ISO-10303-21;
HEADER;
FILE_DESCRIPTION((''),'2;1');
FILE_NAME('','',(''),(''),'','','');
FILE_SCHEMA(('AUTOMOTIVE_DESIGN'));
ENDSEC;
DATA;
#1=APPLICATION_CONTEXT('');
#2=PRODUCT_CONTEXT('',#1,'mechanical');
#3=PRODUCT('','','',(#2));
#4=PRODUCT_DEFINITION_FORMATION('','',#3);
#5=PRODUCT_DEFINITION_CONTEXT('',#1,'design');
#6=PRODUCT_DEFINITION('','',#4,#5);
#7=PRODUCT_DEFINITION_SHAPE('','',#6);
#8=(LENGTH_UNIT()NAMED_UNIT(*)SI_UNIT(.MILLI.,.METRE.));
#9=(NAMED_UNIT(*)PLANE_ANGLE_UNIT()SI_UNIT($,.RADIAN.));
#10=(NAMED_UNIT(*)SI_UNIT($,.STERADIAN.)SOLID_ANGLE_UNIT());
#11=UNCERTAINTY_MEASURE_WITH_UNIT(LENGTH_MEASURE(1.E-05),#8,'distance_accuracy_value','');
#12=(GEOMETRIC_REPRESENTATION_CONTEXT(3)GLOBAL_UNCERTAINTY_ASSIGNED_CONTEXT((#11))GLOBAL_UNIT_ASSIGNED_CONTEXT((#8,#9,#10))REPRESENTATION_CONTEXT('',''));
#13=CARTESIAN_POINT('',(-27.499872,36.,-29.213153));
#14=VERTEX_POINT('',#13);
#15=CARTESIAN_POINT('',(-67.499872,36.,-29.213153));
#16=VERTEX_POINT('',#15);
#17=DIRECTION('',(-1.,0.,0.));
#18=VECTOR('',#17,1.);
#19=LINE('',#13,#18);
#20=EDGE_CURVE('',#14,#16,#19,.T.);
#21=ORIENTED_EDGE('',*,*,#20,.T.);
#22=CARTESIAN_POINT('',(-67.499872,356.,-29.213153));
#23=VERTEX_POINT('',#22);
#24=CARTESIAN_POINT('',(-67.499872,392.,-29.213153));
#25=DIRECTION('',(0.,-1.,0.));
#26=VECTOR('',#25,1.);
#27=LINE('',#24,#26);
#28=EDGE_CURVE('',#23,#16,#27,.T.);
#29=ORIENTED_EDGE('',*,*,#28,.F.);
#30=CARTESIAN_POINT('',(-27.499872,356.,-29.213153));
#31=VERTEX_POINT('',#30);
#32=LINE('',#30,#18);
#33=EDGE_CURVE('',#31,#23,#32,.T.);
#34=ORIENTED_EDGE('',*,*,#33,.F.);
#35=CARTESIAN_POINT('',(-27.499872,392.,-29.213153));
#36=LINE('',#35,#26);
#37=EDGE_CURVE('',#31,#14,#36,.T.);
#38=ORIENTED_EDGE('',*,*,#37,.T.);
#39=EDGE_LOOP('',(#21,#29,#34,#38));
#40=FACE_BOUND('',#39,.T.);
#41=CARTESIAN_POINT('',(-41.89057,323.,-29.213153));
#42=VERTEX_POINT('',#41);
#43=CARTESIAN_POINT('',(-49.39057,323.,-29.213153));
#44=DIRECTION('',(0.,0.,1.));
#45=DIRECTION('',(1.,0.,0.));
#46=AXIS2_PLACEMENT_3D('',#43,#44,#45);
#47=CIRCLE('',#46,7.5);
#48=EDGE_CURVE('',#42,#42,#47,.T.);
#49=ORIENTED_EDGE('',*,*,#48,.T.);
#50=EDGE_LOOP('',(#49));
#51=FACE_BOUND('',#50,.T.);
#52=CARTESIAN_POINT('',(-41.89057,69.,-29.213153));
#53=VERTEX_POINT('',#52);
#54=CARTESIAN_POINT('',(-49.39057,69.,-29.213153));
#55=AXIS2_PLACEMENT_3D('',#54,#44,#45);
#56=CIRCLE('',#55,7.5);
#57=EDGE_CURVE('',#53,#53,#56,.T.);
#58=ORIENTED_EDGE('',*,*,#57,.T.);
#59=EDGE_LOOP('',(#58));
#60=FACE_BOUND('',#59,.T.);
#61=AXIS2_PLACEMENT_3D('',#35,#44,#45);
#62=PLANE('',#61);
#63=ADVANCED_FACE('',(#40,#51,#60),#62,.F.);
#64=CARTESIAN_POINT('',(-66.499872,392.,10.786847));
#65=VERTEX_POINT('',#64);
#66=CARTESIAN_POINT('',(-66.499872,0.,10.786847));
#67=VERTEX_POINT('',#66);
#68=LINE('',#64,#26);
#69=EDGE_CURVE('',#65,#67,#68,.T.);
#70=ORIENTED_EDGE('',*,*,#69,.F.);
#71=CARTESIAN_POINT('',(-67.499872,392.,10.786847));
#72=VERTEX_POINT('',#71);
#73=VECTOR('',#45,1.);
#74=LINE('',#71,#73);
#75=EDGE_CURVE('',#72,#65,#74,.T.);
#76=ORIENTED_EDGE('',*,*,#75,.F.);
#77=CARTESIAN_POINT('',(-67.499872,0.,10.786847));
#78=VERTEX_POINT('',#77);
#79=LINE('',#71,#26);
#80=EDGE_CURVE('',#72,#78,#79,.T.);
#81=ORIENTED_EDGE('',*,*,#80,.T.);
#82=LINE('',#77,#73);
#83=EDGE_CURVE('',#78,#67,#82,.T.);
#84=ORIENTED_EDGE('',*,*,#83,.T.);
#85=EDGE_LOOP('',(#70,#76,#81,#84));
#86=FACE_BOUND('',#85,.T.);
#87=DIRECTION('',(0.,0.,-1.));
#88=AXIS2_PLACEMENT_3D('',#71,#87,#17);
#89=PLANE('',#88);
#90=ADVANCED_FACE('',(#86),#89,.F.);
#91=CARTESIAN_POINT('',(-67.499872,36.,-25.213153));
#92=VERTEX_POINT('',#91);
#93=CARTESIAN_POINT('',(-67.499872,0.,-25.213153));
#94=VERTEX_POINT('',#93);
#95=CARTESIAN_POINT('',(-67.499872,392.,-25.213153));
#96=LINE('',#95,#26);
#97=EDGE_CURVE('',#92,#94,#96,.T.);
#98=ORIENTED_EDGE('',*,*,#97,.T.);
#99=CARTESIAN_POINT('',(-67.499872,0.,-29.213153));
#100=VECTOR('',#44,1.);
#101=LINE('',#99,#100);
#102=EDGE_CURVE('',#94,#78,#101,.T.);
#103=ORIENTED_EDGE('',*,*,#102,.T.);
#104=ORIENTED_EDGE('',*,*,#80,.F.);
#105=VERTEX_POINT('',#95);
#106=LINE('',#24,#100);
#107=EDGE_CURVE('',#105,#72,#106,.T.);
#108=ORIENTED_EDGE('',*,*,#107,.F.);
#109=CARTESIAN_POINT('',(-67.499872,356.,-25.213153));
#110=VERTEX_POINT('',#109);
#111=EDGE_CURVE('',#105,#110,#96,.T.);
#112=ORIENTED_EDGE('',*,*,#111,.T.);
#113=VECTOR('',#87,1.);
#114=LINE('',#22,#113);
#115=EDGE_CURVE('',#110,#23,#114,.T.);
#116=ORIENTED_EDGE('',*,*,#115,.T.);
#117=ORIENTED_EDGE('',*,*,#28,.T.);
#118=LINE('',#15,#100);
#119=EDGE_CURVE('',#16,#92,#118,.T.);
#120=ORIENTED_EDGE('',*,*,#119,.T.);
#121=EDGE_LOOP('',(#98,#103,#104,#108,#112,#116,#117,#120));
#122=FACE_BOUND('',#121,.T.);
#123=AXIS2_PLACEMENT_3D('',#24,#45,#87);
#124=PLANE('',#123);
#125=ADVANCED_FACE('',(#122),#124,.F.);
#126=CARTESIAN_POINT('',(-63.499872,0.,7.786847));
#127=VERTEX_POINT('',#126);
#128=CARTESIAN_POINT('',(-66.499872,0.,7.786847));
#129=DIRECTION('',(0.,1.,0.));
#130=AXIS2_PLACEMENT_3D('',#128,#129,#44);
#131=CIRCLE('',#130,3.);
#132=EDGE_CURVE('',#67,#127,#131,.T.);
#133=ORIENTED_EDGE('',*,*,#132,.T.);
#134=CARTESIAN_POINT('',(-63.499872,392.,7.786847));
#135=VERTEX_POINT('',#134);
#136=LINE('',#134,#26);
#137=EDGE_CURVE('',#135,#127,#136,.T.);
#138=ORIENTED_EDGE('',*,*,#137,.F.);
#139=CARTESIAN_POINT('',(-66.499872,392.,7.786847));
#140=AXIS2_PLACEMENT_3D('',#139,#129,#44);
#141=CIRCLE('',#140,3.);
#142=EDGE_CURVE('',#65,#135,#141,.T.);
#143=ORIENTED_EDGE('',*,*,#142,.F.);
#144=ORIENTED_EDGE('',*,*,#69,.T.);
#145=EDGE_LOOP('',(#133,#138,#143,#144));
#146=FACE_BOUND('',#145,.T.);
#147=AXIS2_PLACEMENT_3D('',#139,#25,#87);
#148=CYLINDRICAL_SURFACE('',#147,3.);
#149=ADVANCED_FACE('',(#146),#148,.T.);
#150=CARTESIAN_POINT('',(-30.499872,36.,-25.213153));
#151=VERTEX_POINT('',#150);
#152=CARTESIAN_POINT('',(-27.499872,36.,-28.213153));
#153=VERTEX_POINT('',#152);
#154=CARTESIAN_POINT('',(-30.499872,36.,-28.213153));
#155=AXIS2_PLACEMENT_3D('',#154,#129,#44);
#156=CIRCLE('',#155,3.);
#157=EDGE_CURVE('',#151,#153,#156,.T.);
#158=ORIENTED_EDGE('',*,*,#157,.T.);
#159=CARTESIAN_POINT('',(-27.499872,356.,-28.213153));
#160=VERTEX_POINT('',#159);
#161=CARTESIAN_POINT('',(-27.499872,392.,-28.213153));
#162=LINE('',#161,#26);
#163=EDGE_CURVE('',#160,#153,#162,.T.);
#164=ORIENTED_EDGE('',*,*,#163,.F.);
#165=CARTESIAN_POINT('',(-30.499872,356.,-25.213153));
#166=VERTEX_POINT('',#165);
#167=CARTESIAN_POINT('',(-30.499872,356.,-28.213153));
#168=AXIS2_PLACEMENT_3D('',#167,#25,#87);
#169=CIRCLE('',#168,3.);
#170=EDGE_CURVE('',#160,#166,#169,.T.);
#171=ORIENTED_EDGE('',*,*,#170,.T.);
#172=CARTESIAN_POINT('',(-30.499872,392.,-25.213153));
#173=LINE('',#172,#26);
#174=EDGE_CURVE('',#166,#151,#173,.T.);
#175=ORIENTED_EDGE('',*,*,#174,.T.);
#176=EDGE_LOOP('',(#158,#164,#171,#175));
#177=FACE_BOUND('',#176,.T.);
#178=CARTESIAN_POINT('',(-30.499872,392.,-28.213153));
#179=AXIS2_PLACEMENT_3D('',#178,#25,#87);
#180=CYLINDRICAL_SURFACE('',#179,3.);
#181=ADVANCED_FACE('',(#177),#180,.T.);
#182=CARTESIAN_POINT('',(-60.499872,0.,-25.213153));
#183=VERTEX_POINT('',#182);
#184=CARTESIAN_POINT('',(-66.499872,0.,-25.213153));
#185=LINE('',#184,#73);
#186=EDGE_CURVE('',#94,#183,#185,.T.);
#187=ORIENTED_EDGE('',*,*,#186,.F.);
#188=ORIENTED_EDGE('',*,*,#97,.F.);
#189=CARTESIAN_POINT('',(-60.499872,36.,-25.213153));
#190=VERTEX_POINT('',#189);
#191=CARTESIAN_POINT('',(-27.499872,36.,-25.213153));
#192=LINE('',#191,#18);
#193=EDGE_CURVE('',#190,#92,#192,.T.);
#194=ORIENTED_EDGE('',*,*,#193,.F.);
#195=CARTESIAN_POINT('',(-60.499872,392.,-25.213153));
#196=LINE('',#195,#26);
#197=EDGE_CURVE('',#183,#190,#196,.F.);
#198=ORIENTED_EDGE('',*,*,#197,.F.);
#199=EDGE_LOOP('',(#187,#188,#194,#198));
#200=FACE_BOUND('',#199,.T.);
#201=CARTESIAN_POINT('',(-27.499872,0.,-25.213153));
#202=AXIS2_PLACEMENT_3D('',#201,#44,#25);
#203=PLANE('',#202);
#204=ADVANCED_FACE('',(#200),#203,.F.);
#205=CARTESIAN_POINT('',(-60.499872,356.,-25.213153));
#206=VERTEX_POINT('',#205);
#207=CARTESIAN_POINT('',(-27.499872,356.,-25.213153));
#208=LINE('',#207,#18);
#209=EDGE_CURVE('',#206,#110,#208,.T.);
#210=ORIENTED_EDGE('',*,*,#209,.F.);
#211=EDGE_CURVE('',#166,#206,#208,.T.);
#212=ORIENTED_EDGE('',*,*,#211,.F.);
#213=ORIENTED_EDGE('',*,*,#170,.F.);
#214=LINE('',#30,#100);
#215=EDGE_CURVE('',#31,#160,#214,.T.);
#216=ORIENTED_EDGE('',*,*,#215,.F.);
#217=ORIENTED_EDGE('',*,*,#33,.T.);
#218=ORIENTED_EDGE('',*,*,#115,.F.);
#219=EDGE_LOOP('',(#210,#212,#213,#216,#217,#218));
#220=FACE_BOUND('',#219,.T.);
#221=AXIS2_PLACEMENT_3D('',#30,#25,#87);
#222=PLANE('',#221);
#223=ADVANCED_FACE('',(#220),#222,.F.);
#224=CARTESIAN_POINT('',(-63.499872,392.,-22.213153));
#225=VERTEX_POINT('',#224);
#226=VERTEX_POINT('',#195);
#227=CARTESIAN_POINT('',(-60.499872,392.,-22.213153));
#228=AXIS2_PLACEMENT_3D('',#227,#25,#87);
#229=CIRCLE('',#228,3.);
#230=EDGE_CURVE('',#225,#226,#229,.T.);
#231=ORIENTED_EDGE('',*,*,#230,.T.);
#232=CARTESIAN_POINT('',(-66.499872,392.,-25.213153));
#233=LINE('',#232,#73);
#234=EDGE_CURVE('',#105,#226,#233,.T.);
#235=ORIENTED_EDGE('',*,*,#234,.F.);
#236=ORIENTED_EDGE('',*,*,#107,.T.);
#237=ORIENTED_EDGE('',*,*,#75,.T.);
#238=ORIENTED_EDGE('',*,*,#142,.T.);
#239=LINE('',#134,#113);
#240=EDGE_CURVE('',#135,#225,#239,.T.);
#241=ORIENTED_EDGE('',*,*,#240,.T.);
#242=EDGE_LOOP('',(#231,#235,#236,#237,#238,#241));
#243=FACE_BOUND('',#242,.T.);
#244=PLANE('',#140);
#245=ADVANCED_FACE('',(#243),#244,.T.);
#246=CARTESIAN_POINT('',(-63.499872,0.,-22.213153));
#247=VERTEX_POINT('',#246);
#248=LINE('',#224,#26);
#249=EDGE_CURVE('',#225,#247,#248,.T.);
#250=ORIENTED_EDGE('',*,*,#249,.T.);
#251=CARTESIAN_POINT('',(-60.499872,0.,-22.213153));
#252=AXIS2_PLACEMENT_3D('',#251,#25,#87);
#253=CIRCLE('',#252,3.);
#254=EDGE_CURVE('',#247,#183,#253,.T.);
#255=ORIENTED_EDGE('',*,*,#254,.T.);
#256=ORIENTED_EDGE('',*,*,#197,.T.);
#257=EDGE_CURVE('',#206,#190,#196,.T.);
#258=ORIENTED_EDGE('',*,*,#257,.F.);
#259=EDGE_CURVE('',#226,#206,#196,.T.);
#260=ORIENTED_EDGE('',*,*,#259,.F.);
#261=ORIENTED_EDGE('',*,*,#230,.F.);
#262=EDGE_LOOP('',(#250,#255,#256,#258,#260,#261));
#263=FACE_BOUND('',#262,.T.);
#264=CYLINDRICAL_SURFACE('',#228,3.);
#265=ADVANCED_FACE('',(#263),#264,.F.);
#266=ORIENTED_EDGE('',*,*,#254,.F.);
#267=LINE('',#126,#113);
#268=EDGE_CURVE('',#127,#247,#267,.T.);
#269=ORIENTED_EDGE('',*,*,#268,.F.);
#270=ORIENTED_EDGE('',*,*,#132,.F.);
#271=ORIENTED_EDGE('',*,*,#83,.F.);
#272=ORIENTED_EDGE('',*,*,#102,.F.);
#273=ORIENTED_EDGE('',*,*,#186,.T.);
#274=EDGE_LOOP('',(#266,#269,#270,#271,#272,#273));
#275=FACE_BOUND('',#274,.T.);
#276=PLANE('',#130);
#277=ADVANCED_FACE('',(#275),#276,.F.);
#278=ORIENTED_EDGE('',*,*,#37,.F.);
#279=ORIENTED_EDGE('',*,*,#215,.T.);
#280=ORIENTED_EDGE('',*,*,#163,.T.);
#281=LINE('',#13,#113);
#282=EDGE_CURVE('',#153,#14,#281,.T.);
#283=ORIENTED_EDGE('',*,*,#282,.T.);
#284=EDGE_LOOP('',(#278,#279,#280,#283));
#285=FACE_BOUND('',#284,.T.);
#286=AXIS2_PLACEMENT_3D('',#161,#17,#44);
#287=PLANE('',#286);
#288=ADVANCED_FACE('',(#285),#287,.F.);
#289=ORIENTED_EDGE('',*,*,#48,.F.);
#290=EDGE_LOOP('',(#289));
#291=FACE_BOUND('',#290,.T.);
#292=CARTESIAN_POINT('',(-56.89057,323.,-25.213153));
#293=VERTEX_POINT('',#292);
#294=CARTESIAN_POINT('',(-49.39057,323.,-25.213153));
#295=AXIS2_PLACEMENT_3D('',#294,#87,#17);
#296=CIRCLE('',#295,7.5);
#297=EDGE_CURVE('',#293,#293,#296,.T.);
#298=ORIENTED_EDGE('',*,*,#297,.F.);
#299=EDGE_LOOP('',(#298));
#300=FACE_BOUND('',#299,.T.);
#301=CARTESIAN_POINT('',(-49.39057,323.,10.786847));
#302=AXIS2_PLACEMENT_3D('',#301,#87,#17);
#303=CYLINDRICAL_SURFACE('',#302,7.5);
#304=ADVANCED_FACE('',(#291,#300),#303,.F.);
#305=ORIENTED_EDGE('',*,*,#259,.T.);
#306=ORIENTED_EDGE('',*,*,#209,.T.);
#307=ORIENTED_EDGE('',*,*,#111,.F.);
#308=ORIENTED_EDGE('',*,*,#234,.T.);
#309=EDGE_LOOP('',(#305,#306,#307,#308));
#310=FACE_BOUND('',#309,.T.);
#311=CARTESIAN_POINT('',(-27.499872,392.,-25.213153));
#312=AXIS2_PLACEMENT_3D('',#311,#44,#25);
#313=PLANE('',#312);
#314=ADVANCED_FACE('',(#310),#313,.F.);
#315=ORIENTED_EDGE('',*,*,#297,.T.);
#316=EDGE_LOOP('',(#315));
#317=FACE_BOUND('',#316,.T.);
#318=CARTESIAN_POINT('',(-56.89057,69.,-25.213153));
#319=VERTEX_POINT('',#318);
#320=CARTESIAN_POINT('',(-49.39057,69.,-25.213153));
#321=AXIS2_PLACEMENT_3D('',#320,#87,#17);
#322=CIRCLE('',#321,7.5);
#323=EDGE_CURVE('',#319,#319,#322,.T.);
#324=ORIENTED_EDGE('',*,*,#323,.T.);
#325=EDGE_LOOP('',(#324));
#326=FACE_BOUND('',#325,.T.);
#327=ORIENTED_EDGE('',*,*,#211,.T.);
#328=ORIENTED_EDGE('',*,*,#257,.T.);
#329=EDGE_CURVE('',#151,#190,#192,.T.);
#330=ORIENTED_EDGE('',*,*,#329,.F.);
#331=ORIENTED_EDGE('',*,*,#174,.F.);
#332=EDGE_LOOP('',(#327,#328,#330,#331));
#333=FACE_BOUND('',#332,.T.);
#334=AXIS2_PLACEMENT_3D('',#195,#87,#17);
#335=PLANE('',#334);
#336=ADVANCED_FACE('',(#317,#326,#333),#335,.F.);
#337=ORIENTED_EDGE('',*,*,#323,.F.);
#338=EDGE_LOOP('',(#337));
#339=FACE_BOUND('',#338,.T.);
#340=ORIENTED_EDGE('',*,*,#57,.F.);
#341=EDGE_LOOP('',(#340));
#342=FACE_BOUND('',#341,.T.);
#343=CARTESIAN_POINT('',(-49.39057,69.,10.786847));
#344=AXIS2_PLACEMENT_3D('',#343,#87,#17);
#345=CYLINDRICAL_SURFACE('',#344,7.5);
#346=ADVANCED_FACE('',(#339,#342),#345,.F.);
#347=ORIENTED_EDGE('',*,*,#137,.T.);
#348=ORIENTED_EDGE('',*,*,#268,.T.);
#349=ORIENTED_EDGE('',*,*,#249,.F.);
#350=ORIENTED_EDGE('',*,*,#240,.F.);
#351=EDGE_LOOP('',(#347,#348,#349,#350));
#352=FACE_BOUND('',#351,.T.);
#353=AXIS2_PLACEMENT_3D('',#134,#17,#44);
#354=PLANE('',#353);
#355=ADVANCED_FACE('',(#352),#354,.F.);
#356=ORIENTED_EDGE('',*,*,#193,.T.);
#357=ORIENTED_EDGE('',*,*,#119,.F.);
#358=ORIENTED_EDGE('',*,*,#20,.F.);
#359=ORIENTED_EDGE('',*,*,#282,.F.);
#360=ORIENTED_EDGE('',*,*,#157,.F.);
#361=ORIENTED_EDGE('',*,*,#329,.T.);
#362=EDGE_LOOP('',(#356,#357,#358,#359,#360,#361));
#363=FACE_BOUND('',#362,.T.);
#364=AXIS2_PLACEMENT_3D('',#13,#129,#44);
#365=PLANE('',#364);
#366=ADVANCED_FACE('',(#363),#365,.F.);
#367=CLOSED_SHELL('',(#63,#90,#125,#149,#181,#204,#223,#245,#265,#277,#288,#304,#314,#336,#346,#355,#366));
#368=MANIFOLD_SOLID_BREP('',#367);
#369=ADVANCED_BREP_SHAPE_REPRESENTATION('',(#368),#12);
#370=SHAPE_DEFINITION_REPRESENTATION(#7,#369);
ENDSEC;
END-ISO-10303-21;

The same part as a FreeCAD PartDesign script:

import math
import FreeCAD as App
import Part
import Sketcher
from FreeCAD import Vector


def add_polygon(sketch, points):
    """Adds a closed chain of lines whose ends are joined by coincident constraints."""
    first, n = sketch.GeometryCount, len(points)
    for a, b in zip(points, points[1:] + points[:1]):
        sketch.addGeometry(Part.LineSegment(App.Vector(*a, 0), App.Vector(*b, 0)), False)
    for i in range(n):
        sketch.addConstraint(Sketcher.Constraint("Coincident", first + i, 2, first + (i + 1) % n, 1))

doc = App.newDocument("Part")
body = doc.addObject("PartDesign::Body", "Body")

# Sketch on XZ plane
sketch1 = doc.addObject("Sketcher::SketchObject", "Sketch")
body.addObject(sketch1)
sketch1.AttachmentSupport = (doc.XZ_Plane, [""])
sketch1.MapMode = "FlatFace"
sketch1.addGeometry(Part.LineSegment(Vector(-27.5, -29.2, 0), Vector(-67.5, -29.2, 0)), False)
sketch1.addGeometry(Part.LineSegment(Vector(-67.5, -29.2, 0), Vector(-67.5, 10.8, 0)), False)
sketch1.addGeometry(Part.LineSegment(Vector(-67.5, 10.8, 0), Vector(-66.5, 10.8, 0)), False)
sketch1.addGeometry(Part.ArcOfCircle(Part.Circle(Vector(-66.5, 7.8, 0), Vector(0, 0, 1), 3), math.radians(0), math.radians(90)), False)
sketch1.addGeometry(Part.LineSegment(Vector(-63.5, 7.8, 0), Vector(-63.5, -22.2, 0)), False)
sketch1.addGeometry(Part.ArcOfCircle(Part.Circle(Vector(-60.5, -22.2, 0), Vector(0, 0, 1), 3), math.radians(180), math.radians(270)), False)
sketch1.addGeometry(Part.LineSegment(Vector(-60.5, -25.2, 0), Vector(-30.5, -25.2, 0)), False)
sketch1.addGeometry(Part.ArcOfCircle(Part.Circle(Vector(-30.5, -28.2, 0), Vector(0, 0, 1), 3), math.radians(0), math.radians(90)), False)
sketch1.addGeometry(Part.LineSegment(Vector(-27.5, -28.2, 0), Vector(-27.5, -29.2, 0)), False)
sketch1.addConstraint(Sketcher.Constraint("Coincident", 0, 2, 1, 1))
sketch1.addConstraint(Sketcher.Constraint("Coincident", 1, 2, 2, 1))
sketch1.addConstraint(Sketcher.Constraint("Tangent", 2, 2, 3, 2))
sketch1.addConstraint(Sketcher.Constraint("Tangent", 3, 1, 4, 1))
sketch1.addConstraint(Sketcher.Constraint("Tangent", 4, 2, 5, 1))
sketch1.addConstraint(Sketcher.Constraint("Tangent", 5, 2, 6, 1))
sketch1.addConstraint(Sketcher.Constraint("Tangent", 6, 2, 7, 2))
sketch1.addConstraint(Sketcher.Constraint("Tangent", 7, 1, 8, 1))
sketch1.addConstraint(Sketcher.Constraint("Coincident", 8, 2, 0, 1))
sketch1.addConstraint(Sketcher.Constraint("Horizontal", 0))
sketch1.addConstraint(Sketcher.Constraint("Vertical", 1))
sketch1.addConstraint(Sketcher.Constraint("Horizontal", 2))
sketch1.addConstraint(Sketcher.Constraint("Vertical", 4))
sketch1.addConstraint(Sketcher.Constraint("Horizontal", 6))
sketch1.addConstraint(Sketcher.Constraint("Vertical", 8))
sketch1.addConstraint(Sketcher.Constraint("Equal", 3, 5))
sketch1.addConstraint(Sketcher.Constraint("Equal", 5, 7))
sketch1.addConstraint(Sketcher.Constraint("Equal", 0, 1))
sketch1.addConstraint(Sketcher.Constraint("Equal", 6, 4))
sketch1.addConstraint(Sketcher.Constraint("Radius", 3, 3.0))
sketch1.addConstraint(Sketcher.Constraint("DistanceX", 0, 2, 0, 1, 40.0))
sketch1.addConstraint(Sketcher.Constraint("DistanceX", 2, 1, 2, 2, 1.0))
sketch1.addConstraint(Sketcher.Constraint("DistanceX", 3, 3, -1, 1, 66.499872))
sketch1.addConstraint(Sketcher.Constraint("DistanceY", -1, 1, 3, 3, 7.786847))
pad1 = doc.addObject("PartDesign::Pad", "Pad")
body.addObject(pad1)
pad1.Profile = sketch1
pad1.Length = 392
pad1.Reversed = True

# Sketch on YZ plane
sketch2 = doc.addObject("Sketcher::SketchObject", "Sketch001")
body.addObject(sketch2)
sketch2.AttachmentSupport = (doc.YZ_Plane, [""])
sketch2.MapMode = "FlatFace"
sketch2.AttachmentOffset = App.Placement(Vector(0, 0, -67.499872), App.Rotation())
add_polygon(sketch2, [(392, -29.2), (356, -29.2), (356, -25.2), (392, -25.2)])  # lines 0-3
add_polygon(sketch2, [(36, -29.2), (0, -29.2), (0, -25.2), (36, -25.2)])  # lines 4-7
sketch2.addConstraint(Sketcher.Constraint("Horizontal", 0))
sketch2.addConstraint(Sketcher.Constraint("Vertical", 1))
sketch2.addConstraint(Sketcher.Constraint("Horizontal", 2))
sketch2.addConstraint(Sketcher.Constraint("Vertical", 3))
sketch2.addConstraint(Sketcher.Constraint("Horizontal", 4))
sketch2.addConstraint(Sketcher.Constraint("Vertical", 5))
sketch2.addConstraint(Sketcher.Constraint("Horizontal", 6))
sketch2.addConstraint(Sketcher.Constraint("Vertical", 7))
sketch2.addConstraint(Sketcher.Constraint("PointOnObject", 4, 2, -2))
sketch2.addConstraint(Sketcher.Constraint("Horizontal", 3, 2, 4, 2))
sketch2.addConstraint(Sketcher.Constraint("Horizontal", 2, 2, 5, 2))
sketch2.addConstraint(Sketcher.Constraint("Equal", 2, 4))
sketch2.addConstraint(Sketcher.Constraint("DistanceX", 0, 2, 0, 1, 36.0))
sketch2.addConstraint(Sketcher.Constraint("DistanceY", 1, 1, 1, 2, 4.0))
sketch2.addConstraint(Sketcher.Constraint("DistanceX", -1, 1, 0, 2, 356.0))
sketch2.addConstraint(Sketcher.Constraint("DistanceY", 0, 2, -1, 1, 29.213153))
pocket1 = doc.addObject("PartDesign::Pocket", "Pocket")
body.addObject(pocket1)
pocket1.Profile = sketch2
pocket1.Type = "ThroughAll"
pocket1.Midplane = True

# Sketch on XY plane
sketch3 = doc.addObject("Sketcher::SketchObject", "Sketch002")
body.addObject(sketch3)
sketch3.AttachmentSupport = (doc.XY_Plane, [""])
sketch3.MapMode = "FlatFace"
sketch3.AttachmentOffset = App.Placement(Vector(0, 0, -29.213153), App.Rotation())
sketch3.addGeometry(Part.Circle(Vector(-49, 323, 0), Vector(0, 0, 1), 8), False)
sketch3.addGeometry(Part.Circle(Vector(-49, 69, 0), Vector(0, 0, 1), 8), False)
sketch3.addConstraint(Sketcher.Constraint("Equal", 0, 1))
sketch3.addConstraint(Sketcher.Constraint("Vertical", 0, 3, 1, 3))
sketch3.addConstraint(Sketcher.Constraint("Diameter", 0, 15.0))
sketch3.addConstraint(Sketcher.Constraint("DistanceY", -1, 1, 0, 3, 323.0))
sketch3.addConstraint(Sketcher.Constraint("DistanceY", -1, 1, 1, 3, 69.0))
sketch3.addConstraint(Sketcher.Constraint("DistanceX", 0, 3, -1, 1, 49.39057))
pocket2 = doc.addObject("PartDesign::Pocket", "Pocket001")
body.addObject(pocket2)
pocket2.Profile = sketch3
pocket2.Type = "ThroughAll"
pocket2.Midplane = True

doc.recompute()
